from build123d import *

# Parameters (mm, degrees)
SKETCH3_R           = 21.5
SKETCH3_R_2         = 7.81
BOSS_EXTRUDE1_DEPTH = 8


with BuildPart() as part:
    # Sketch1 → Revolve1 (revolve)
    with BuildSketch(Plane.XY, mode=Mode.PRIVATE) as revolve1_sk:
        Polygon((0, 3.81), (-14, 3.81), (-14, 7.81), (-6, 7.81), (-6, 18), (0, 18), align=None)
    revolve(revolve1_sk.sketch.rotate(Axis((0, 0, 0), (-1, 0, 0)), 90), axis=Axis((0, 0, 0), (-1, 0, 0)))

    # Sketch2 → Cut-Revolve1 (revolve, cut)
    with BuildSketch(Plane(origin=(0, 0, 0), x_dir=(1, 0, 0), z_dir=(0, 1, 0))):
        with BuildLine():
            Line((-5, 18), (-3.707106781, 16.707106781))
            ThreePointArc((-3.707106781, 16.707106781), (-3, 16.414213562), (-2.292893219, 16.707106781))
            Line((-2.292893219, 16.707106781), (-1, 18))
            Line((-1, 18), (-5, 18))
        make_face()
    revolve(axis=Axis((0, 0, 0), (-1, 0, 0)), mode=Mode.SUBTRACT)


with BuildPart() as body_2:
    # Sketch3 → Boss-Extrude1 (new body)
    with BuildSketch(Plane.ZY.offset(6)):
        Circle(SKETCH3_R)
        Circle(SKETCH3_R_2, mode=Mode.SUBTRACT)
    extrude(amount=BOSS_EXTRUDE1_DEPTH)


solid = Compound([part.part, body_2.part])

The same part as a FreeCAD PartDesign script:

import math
import FreeCAD as App
import Part
import Sketcher
Q = App.Units.Quantity

doc = App.newDocument("Part")
body = doc.addObject("PartDesign::Body", "Body")

# Sketch on XY plane
sketch1 = body.newObject("Sketcher::SketchObject", "Sketch")
sketch1.AttachmentSupport = (doc.getObject("XY_Plane"), [""])
sketch1.MapMode = "FlatFace"
sketch1.addGeometry([
    Part.LineSegment(App.Vector(-14, 3.8, 0), App.Vector(0, 3.8, 0)),  # 0
    Part.LineSegment(App.Vector(0, 3.8, 0), App.Vector(0, 18, 0)),  # 1
    Part.LineSegment(App.Vector(0, 18, 0), App.Vector(-6, 18, 0)),  # 2
    Part.LineSegment(App.Vector(-6, 18, 0), App.Vector(-6, 7.8, 0)),  # 3
    Part.LineSegment(App.Vector(-6, 7.8, 0), App.Vector(-14, 7.8, 0)),  # 4
    Part.LineSegment(App.Vector(-14, 7.8, 0), App.Vector(-14, 3.8, 0)),  # 5
], False)
sketch1.addConstraint([
    Sketcher.Constraint("Coincident", 0, 2, 1, 1),
    Sketcher.Constraint("Coincident", 1, 2, 2, 1),
    Sketcher.Constraint("Coincident", 2, 2, 3, 1),
    Sketcher.Constraint("Coincident", 3, 2, 4, 1),
    Sketcher.Constraint("Coincident", 4, 2, 5, 1),
    Sketcher.Constraint("Coincident", 5, 2, 0, 1),
    Sketcher.Constraint("Horizontal", 0),
    Sketcher.Constraint("Vertical", 1),
    Sketcher.Constraint("Horizontal", 2),
    Sketcher.Constraint("Vertical", 3),
    Sketcher.Constraint("Horizontal", 4),
    Sketcher.Constraint("Vertical", 5),
    Sketcher.Constraint("PointOnObject", 0, 2, -2),
    Sketcher.Constraint("DistanceX", 0, 1, 0, 2, Q("14 mm")),
    Sketcher.Constraint("DistanceX", 2, 2, 2, 1, Q("6 mm")),
    Sketcher.Constraint("DistanceY", 5, 2, 5, 1, Q("4 mm")),
    Sketcher.Constraint("DistanceY", -1, 1, 1, 2, Q("18 mm")),
    Sketcher.Constraint("DistanceY", 1, 1, 1, 2, Q("14.19 mm")),
])
revolution = body.newObject("PartDesign::Revolution", "Revolution")
revolution.Profile = sketch1
revolution.ReferenceAxis = (sketch1, ["H_Axis"])
revolution.Angle = 360

# Sketch on XZ plane
sketch2 = body.newObject("Sketcher::SketchObject", "Sketch001")
sketch2.AttachmentSupport = (doc.getObject("XZ_Plane"), [""])
sketch2.MapMode = "FlatFace"
sketch2.addGeometry([
    Part.LineSegment(App.Vector(-5, -18, 0), App.Vector(-3.7, -16.7, 0)),
    Part.ArcOfCircle(Part.Circle(App.Vector(-3, -17.4, 0), App.Vector(0, 0, 1), 1), math.radians(45), math.radians(135)),
    Part.LineSegment(App.Vector(-2.3, -16.7, 0), App.Vector(-1, -18, 0)),
    Part.LineSegment(App.Vector(-1, -18, 0), App.Vector(-5, -18, 0)),
], False)
sketch2.addConstraint([
    Sketcher.Constraint("Tangent", 0, 2, 1, 2),
    Sketcher.Constraint("Tangent", 1, 1, 2, 1),
    Sketcher.Constraint("Coincident", 2, 2, 3, 1),
    Sketcher.Constraint("Coincident", 3, 2, 0, 1),
    Sketcher.Constraint("Horizontal", 3),
    Sketcher.Constraint("Perpendicular", 0, 2),
    Sketcher.Constraint("Horizontal", 0, 2, 1, 1),
    Sketcher.Constraint("Radius", 1, Q("1 mm")),
    Sketcher.Constraint("DistanceX", 3, 2, 3, 1, Q("4 mm")),
    Sketcher.Constraint("DistanceX", 1, 3, -1, 1, Q("3 mm")),
    Sketcher.Constraint("DistanceY", 2, 2, -1, 1, Q("18 mm")),
])
groove = body.newObject("PartDesign::Groove", "Groove")
groove.Profile = sketch2
groove.ReferenceAxis = (sketch2, ["H_Axis"])
groove.Angle = 360
body2 = doc.addObject("PartDesign::Body", "Body001")

# Sketch on YZ plane
sketch3 = body2.newObject("Sketcher::SketchObject", "Sketch002")
sketch3.AttachmentSupport = (doc.getObject("YZ_Plane001"), [""])
sketch3.MapMode = "FlatFace"
sketch3.AttachmentOffset = App.Placement(App.Vector(0, 0, -6), App.Rotation())
sketch3.addGeometry([
    Part.Circle(App.Vector(0, 0, 0), App.Vector(0, 0, 1), 22),
    Part.Circle(App.Vector(0, 0, 0), App.Vector(0, 0, 1), 8),
], False)
sketch3.addConstraint([
    Sketcher.Constraint("Coincident", 0, 3, -1, 1),
    Sketcher.Constraint("Coincident", 1, 3, -1, 1),
    Sketcher.Constraint("Diameter", 0, Q("43 mm")),
    Sketcher.Constraint("Diameter", 1, Q("15.62 mm")),
])
pad1 = body2.newObject("PartDesign::Pad", "Pad")
pad1.Profile = sketch3
pad1.Length = 8
pad1.Reversed = True

doc.recompute()
